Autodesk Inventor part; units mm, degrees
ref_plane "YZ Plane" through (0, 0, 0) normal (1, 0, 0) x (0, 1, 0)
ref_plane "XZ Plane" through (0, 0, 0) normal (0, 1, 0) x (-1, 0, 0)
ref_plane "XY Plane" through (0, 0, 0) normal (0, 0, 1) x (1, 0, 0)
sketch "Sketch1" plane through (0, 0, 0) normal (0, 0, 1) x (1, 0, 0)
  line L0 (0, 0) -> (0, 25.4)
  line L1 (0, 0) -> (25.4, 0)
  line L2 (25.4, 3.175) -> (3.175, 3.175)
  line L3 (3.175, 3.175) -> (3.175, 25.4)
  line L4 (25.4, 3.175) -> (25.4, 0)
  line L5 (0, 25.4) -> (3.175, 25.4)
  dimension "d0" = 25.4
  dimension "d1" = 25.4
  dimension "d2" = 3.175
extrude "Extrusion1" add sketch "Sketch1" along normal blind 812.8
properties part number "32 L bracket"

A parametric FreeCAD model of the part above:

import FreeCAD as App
import Part
import Sketcher
Q = App.Units.Quantity


def add_polygon(sketch, points):
    """Adds a closed chain of lines whose ends are joined by coincident constraints."""
    first, n = sketch.GeometryCount, len(points)
    for a, b in zip(points, points[1:] + points[:1]):
        sketch.addGeometry(Part.LineSegment(App.Vector(*a, 0), App.Vector(*b, 0)), False)
    for i in range(n):
        sketch.addConstraint(Sketcher.Constraint("Coincident", first + i, 2, first + (i + 1) % n, 1))

doc = App.newDocument("Part")
params = doc.addObject("Spreadsheet::Sheet", "Params")
for row, (alias, value) in enumerate([
    ("sketch1_width", "1 in"),
    ("sketch1_width2", "0.125 in"),
    ("pad1_length", "32 in"),
], start=1):
    params.set(f"A{row}", alias)
    params.set(f"B{row}", "=" + value)
    params.setAlias(f"B{row}", alias)

body = doc.addObject("PartDesign::Body", "Body")

# Sketch on XY plane
sketch1 = body.newObject("Sketcher::SketchObject", "Sketch")
sketch1.AttachmentSupport = (doc.getObject("XY_Plane"), [""])
sketch1.MapMode = "FlatFace"
add_polygon(sketch1, [(0, 25.4), (0, 0), (25.4, 0), (25.4, 3.2), (3.2, 3.2), (3.2, 25.4)])  # lines 0-5
sketch1.addConstraint([
    Sketcher.Constraint("Vertical", 0),
    Sketcher.Constraint("Horizontal", 1),
    Sketcher.Constraint("Vertical", 2),
    Sketcher.Constraint("Horizontal", 3),
    Sketcher.Constraint("Vertical", 4),
    Sketcher.Constraint("Horizontal", 5),
    Sketcher.Constraint("Coincident", 0, 2, -1, 1),
    Sketcher.Constraint("Equal", 1, 0),
    Sketcher.Constraint("Equal", 5, 2),
    Sketcher.Constraint("DistanceX", 1, 1, 1, 2, Q("1 in")),
    Sketcher.Constraint("DistanceX", 5, 2, 5, 1, Q("0.125 in")),
])
sketch1.setExpression("Constraints[15]", "Params.sketch1_width")
sketch1.setExpression("Constraints[16]", "Params.sketch1_width2")
pad1 = body.newObject("PartDesign::Pad", "Pad")
pad1.Profile = sketch1
pad1.setExpression("Length", "Params.pad1_length")

doc.recompute()
